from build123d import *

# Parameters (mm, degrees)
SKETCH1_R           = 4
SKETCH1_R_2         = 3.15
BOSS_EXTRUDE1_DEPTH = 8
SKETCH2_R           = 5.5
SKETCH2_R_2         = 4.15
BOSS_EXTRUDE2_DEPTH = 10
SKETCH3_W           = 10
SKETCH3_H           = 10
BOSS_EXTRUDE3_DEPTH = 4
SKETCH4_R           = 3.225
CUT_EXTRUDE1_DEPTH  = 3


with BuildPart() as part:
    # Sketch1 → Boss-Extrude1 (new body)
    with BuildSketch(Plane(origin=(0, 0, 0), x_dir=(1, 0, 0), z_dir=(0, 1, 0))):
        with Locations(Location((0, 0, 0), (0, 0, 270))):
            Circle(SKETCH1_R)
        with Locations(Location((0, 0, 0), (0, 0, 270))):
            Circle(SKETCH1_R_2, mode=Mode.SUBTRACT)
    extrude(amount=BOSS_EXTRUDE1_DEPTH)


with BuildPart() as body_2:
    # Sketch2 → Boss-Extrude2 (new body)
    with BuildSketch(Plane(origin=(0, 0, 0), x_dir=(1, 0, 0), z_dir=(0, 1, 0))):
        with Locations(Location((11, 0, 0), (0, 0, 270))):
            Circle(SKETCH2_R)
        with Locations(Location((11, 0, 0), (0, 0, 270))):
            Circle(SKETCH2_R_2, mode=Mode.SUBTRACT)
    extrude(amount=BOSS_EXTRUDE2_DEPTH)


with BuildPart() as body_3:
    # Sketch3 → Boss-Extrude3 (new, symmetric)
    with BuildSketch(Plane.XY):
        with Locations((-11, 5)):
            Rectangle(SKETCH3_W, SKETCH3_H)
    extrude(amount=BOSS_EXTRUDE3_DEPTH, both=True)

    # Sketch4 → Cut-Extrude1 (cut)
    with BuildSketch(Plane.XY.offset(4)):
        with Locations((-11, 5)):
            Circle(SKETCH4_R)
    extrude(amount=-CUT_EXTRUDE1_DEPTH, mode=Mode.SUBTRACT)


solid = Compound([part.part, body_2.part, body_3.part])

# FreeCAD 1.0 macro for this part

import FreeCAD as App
import Part
import Sketcher
Q = App.Units.Quantity


def add_polygon(sketch, points):
    """Adds a closed chain of lines whose ends are joined by coincident constraints."""
    first, n = sketch.GeometryCount, len(points)
    for a, b in zip(points, points[1:] + points[:1]):
        sketch.addGeometry(Part.LineSegment(App.Vector(*a, 0), App.Vector(*b, 0)), False)
    for i in range(n):
        sketch.addConstraint(Sketcher.Constraint("Coincident", first + i, 2, first + (i + 1) % n, 1))

doc = App.newDocument("Part")
params = doc.addObject("Spreadsheet::Sheet", "Params")
for row, (alias, value) in enumerate([
    ("sketch1_diameter", "8 mm"),
    ("sketch1_diameter2", "6.3 mm"),
    ("pad1_length", "8 mm"),
    ("sketch2_diameter", "11 mm"),
    ("sketch2_diameter2", "8.3 mm"),
    ("pad2_length", "10 mm"),
    ("sketch3_width", "10 mm"),
    ("pad3_length", "8 mm"),
    ("sketch4_diameter", "6.45 mm"),
    ("pocket1_length", "3 mm"),
], start=1):
    params.set(f"A{row}", alias)
    params.set(f"B{row}", "=" + value)
    params.setAlias(f"B{row}", alias)

body = doc.addObject("PartDesign::Body", "Body")

# Sketch on XZ plane
sketch1 = body.newObject("Sketcher::SketchObject", "Sketch")
sketch1.AttachmentSupport = (doc.getObject("XZ_Plane"), [""])
sketch1.MapMode = "FlatFace"
sketch1.addGeometry([
    Part.Circle(App.Vector(0, 0, 0), App.Vector(0, 0, 1), 4),
    Part.Circle(App.Vector(0, 0, 0), App.Vector(0, 0, 1), 3.1),
], False)
sketch1.addConstraint([
    Sketcher.Constraint("Coincident", 0, 3, -1, 1),
    Sketcher.Constraint("Coincident", 1, 3, -1, 1),
    Sketcher.Constraint("Diameter", 0, Q("8 mm")),
    Sketcher.Constraint("Diameter", 1, Q("6.3 mm")),
])
sketch1.setExpression("Constraints[2]", "Params.sketch1_diameter")
sketch1.setExpression("Constraints[3]", "Params.sketch1_diameter2")
pad1 = body.newObject("PartDesign::Pad", "Pad")
pad1.Profile = sketch1
pad1.setExpression("Length", "Params.pad1_length")
pad1.Reversed = True
body2 = doc.addObject("PartDesign::Body", "Body001")

# Sketch on XZ plane
sketch2 = body2.newObject("Sketcher::SketchObject", "Sketch001")
sketch2.AttachmentSupport = (doc.getObject("XZ_Plane001"), [""])
sketch2.MapMode = "FlatFace"
sketch2.addGeometry([
    Part.Circle(App.Vector(11, 0, 0), App.Vector(0, 0, 1), 5.5),
    Part.Circle(App.Vector(11, 0, 0), App.Vector(0, 0, 1), 4.2),
], False)
sketch2.addConstraint([
    Sketcher.Constraint("Coincident", 1, 3, 0, 3),
    Sketcher.Constraint("PointOnObject", 0, 3, -1),
    Sketcher.Constraint("Diameter", 0, Q("11 mm")),
    Sketcher.Constraint("Diameter", 1, Q("8.3 mm")),
    Sketcher.Constraint("DistanceX", -1, 1, 0, 3, Q("11 mm")),
])
sketch2.setExpression("Constraints[2]", "Params.sketch2_diameter")
sketch2.setExpression("Constraints[3]", "Params.sketch2_diameter2")
pad2 = body2.newObject("PartDesign::Pad", "Pad001")
pad2.Profile = sketch2
pad2.setExpression("Length", "Params.pad2_length")
pad2.Reversed = True
body3 = doc.addObject("PartDesign::Body", "Body002")

# Sketch on XY plane
sketch3 = body3.newObject("Sketcher::SketchObject", "Sketch002")
sketch3.AttachmentSupport = (doc.getObject("XY_Plane002"), [""])
sketch3.MapMode = "FlatFace"
add_polygon(sketch3, [(-16, 10), (-16, 0), (-6, 0), (-6, 10)])  # lines 0-3
sketch3.addConstraint([
    Sketcher.Constraint("Vertical", 0),
    Sketcher.Constraint("Horizontal", 1),
    Sketcher.Constraint("Vertical", 2),
    Sketcher.Constraint("Horizontal", 3),
    Sketcher.Constraint("PointOnObject", 0, 2, -1),
    Sketcher.Constraint("Equal", 3, 0),
    Sketcher.Constraint("DistanceX", 1, 1, 1, 2, Q("10 mm")),
    Sketcher.Constraint("DistanceX", 0, 2, -1, 1, Q("16 mm")),
])
sketch3.setExpression("Constraints[10]", "Params.sketch3_width")
pad3 = body3.newObject("PartDesign::Pad", "Pad002")
pad3.Profile = sketch3
pad3.setExpression("Length", "Params.pad3_length")
pad3.Midplane = True

# Sketch on XY plane
sketch4 = body3.newObject("Sketcher::SketchObject", "Sketch003")
sketch4.AttachmentSupport = (doc.getObject("XY_Plane002"), [""])
sketch4.MapMode = "FlatFace"
sketch4.AttachmentOffset = App.Placement(App.Vector(0, 0, 4), App.Rotation())
sketch4.addGeometry(Part.Circle(App.Vector(-11, 5, 0), App.Vector(0, 0, 1), 3.2), False)
sketch4.addConstraint([
    Sketcher.Constraint("Diameter", 0, Q("6.45 mm")),
    Sketcher.Constraint("DistanceX", 0, 3, -1, 1, Q("11 mm")),
    Sketcher.Constraint("DistanceY", -1, 1, 0, 3, Q("5 mm")),
])
sketch4.setExpression("Constraints[0]", "Params.sketch4_diameter")
pocket1 = body3.newObject("PartDesign::Pocket", "Pocket")
pocket1.Profile = sketch4
pocket1.setExpression("Length", "Params.pocket1_length")

doc.recompute()
